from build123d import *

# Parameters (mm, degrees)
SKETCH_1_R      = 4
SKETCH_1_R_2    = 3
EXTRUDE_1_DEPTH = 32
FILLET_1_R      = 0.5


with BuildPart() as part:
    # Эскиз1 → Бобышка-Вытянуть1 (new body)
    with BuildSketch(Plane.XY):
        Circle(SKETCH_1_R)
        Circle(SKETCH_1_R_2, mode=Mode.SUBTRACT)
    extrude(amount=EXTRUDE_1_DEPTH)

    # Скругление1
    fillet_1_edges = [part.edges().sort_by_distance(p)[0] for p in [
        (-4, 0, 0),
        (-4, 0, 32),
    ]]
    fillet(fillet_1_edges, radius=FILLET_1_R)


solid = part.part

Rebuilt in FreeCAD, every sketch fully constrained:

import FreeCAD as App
import Part
import Sketcher


def edges_at(feature, points):
    """Names of the edges that pass closest to the given points."""
    edges = feature.Shape.Edges
    near = lambda p: min(range(len(edges)), key=lambda i: edges[i].distToShape(Part.Vertex(*p))[0])
    return sorted({f"Edge{near(p) + 1}" for p in points})

doc = App.newDocument("Part")
body = doc.addObject("PartDesign::Body", "Body")

# Sketch on XY plane
sketch1 = body.newObject("Sketcher::SketchObject", "Sketch")
sketch1.AttachmentSupport = (doc.getObject("XY_Plane"), [""])
sketch1.MapMode = "FlatFace"
sketch1.addGeometry(Part.Circle(App.Vector(0, 0, 0), App.Vector(0, 0, 1), 4), False)
sketch1.addGeometry(Part.Circle(App.Vector(0, 0, 0), App.Vector(0, 0, 1), 3), False)
sketch1.addConstraint(Sketcher.Constraint("Coincident", 0, 3, -1, 1))
sketch1.addConstraint(Sketcher.Constraint("Coincident", 1, 3, -1, 1))
sketch1.addConstraint(Sketcher.Constraint("Diameter", 0, 8.0))
sketch1.addConstraint(Sketcher.Constraint("Diameter", 1, 6.0))
pad1 = body.newObject("PartDesign::Pad", "Pad")
pad1.Profile = sketch1
pad1.Length = 32
doc.recompute()

fillet = body.newObject("PartDesign::Fillet", "Fillet")
fillet.Base = (pad1, edges_at(pad1, [(-4, 0, 0), (-4, 0, 32)]))
fillet.Radius = 0.5

doc.recompute()
